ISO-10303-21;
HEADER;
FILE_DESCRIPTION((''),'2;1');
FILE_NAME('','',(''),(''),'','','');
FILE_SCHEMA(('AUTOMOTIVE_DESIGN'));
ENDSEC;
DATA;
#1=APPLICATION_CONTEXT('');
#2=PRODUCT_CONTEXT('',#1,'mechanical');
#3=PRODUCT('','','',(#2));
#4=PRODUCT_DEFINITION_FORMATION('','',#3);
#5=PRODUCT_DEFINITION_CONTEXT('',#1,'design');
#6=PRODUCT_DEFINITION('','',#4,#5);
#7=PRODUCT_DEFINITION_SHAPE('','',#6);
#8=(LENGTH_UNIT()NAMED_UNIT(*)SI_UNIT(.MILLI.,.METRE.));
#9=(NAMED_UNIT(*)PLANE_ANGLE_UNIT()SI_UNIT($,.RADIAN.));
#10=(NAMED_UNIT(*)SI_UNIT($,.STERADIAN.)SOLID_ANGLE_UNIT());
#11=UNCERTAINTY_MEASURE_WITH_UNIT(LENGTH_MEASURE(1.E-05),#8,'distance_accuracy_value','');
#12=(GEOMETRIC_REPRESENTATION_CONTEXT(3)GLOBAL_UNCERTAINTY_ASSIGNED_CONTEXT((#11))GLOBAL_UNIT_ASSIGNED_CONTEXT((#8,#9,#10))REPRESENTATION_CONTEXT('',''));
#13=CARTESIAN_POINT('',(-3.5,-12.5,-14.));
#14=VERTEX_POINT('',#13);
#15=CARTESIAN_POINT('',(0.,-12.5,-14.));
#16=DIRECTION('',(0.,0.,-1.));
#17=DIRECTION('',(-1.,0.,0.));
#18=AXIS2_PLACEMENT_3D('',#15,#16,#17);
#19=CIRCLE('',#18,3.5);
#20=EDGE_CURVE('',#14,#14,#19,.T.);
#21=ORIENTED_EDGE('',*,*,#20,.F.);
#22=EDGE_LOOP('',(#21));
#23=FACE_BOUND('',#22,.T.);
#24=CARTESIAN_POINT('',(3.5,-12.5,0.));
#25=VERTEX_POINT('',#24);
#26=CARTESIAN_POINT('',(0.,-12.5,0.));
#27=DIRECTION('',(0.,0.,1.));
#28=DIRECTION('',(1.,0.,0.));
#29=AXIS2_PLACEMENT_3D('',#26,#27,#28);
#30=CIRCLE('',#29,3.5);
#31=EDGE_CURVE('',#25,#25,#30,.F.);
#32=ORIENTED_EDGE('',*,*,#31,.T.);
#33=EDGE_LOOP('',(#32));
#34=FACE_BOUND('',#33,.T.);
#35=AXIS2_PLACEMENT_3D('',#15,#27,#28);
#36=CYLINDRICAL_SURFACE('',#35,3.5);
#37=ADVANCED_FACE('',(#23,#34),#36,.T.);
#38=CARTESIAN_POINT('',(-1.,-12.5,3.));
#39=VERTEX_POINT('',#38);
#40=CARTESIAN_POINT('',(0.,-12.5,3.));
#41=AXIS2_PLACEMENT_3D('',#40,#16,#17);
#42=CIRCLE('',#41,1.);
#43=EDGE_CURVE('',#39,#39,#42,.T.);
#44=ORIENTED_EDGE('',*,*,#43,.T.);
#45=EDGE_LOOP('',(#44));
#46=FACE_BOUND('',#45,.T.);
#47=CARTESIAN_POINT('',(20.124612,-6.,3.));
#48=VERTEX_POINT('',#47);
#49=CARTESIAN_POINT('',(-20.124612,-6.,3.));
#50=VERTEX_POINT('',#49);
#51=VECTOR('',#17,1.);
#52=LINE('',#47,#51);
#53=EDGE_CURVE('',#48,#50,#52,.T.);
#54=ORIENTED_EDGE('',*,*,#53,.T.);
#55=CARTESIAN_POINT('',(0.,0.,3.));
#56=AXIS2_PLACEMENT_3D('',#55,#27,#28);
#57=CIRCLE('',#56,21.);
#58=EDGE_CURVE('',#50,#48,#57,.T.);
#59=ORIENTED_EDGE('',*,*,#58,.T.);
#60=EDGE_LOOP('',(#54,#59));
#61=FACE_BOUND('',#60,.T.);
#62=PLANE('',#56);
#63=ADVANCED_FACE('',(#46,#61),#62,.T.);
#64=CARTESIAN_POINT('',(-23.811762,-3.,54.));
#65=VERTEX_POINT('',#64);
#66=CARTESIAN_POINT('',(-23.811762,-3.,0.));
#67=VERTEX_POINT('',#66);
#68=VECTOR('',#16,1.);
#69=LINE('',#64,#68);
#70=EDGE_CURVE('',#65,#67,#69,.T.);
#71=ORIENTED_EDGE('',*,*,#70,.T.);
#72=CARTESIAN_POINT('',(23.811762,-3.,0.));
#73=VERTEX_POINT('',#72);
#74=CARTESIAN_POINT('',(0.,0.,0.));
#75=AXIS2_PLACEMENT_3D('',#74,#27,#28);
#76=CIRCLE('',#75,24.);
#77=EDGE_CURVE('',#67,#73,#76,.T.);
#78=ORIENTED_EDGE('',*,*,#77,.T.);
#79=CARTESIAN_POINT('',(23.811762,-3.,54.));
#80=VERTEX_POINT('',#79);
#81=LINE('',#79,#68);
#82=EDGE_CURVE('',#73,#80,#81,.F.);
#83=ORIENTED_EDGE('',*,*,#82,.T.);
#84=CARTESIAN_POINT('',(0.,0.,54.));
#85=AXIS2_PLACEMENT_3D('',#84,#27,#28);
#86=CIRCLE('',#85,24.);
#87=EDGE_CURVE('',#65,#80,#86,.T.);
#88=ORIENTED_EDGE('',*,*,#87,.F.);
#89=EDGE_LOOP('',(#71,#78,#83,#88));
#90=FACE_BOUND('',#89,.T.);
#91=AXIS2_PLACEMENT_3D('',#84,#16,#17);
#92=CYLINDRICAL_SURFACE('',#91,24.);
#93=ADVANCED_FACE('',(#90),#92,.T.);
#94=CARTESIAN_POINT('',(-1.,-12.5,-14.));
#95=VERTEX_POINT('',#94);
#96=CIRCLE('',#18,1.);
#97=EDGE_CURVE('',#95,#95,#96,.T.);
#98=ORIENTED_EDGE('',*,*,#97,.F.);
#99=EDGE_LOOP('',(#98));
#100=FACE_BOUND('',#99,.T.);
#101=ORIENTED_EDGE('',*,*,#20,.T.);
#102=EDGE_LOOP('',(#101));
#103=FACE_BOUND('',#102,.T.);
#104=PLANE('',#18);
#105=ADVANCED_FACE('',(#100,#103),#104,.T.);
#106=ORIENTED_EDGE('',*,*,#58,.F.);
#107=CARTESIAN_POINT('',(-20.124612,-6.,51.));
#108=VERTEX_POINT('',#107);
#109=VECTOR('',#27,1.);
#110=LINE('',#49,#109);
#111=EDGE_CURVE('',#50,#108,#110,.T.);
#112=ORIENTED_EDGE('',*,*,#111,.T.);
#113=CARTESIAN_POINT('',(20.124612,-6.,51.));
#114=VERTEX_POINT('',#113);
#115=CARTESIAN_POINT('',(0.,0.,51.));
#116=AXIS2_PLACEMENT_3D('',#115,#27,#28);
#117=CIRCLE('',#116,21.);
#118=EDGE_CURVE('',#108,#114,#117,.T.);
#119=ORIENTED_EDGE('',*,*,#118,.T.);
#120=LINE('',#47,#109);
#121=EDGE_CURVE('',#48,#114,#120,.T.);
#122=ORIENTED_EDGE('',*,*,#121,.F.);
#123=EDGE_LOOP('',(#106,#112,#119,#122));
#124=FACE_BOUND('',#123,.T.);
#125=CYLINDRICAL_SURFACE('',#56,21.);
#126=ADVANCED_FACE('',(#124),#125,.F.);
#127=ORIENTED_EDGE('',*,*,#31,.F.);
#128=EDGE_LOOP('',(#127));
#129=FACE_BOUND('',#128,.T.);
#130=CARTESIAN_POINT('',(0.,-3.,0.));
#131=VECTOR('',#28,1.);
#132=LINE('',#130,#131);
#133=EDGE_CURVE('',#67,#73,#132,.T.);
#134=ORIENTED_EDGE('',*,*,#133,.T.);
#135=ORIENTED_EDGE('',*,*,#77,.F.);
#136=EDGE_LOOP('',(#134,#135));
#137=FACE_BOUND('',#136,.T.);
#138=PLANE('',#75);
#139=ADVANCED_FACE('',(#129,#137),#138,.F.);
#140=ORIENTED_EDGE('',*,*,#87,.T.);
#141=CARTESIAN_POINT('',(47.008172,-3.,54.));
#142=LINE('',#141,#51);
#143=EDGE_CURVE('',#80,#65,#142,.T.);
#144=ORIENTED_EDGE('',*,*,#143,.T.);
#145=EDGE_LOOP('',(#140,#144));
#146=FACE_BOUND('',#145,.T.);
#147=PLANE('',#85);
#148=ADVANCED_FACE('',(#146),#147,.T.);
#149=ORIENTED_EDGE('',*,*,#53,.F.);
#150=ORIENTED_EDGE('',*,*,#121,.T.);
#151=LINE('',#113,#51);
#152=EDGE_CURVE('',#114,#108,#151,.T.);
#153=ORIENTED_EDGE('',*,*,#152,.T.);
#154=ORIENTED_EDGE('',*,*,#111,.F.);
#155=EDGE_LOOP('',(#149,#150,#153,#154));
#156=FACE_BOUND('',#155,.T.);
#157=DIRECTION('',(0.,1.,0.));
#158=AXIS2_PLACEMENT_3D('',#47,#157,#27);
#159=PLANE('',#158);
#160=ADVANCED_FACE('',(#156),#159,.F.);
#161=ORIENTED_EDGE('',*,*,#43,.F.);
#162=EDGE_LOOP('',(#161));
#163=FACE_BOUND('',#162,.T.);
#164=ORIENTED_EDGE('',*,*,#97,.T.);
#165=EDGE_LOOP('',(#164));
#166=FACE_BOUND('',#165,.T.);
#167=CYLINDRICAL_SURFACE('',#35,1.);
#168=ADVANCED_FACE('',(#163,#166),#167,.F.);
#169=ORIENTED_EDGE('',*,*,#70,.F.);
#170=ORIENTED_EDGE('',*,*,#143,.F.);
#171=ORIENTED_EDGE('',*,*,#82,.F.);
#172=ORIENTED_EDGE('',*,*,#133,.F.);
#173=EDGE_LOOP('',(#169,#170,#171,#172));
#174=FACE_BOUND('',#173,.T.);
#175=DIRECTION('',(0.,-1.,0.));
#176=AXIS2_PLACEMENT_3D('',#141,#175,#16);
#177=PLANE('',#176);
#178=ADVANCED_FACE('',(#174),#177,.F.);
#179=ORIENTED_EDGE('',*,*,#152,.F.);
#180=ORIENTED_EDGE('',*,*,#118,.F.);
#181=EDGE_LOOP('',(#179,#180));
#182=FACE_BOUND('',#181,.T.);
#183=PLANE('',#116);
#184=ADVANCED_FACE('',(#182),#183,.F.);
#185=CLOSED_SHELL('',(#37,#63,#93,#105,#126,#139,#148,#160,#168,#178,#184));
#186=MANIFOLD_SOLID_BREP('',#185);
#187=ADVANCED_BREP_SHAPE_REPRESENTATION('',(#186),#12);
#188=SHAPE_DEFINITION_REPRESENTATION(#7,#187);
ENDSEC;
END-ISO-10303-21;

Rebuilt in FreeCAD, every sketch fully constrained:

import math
import FreeCAD as App
import Part
import Sketcher

doc = App.newDocument("Part")
body = doc.addObject("PartDesign::Body", "Body")

# Sketch on XY plane
sketch1 = body.newObject("Sketcher::SketchObject", "Sketch")
sketch1.AttachmentSupport = (doc.getObject("XY_Plane"), [""])
sketch1.MapMode = "FlatFace"
sketch1.addGeometry(Part.Circle(App.Vector(0, 0, 0), App.Vector(0, 0, 1), 24), False)
sketch1.addConstraint(Sketcher.Constraint("Coincident", 0, 3, -1, 1))
sketch1.addConstraint(Sketcher.Constraint("Diameter", 0, 48.0))
pad1 = body.newObject("PartDesign::Pad", "Pad")
pad1.Profile = sketch1
pad1.Length = 54

# Sketch on XY plane
sketch2 = body.newObject("Sketcher::SketchObject", "Sketch001")
sketch2.AttachmentSupport = (doc.getObject("XY_Plane"), [""])
sketch2.MapMode = "FlatFace"
sketch2.addGeometry(Part.LineSegment(App.Vector(47.008172, 33.253248, 0), App.Vector(47.008172, -3, 0)), False)
sketch2.addGeometry(Part.LineSegment(App.Vector(47.008172, -3, 0), App.Vector(-42.992026, -3, 0)), False)
sketch2.addGeometry(Part.LineSegment(App.Vector(-42.992026, -3, 0), App.Vector(-42.992026, 33.253248, 0)), False)
sketch2.addGeometry(Part.LineSegment(App.Vector(-42.992026, 33.253248, 0), App.Vector(47.008172, 33.253248, 0)), False)
sketch2.addConstraint(Sketcher.Constraint("Coincident", 0, 2, 1, 1))
sketch2.addConstraint(Sketcher.Constraint("Coincident", 1, 2, 2, 1))
sketch2.addConstraint(Sketcher.Constraint("Coincident", 2, 2, 3, 1))
sketch2.addConstraint(Sketcher.Constraint("Coincident", 3, 2, 0, 1))
sketch2.addConstraint(Sketcher.Constraint("Vertical", 0))
sketch2.addConstraint(Sketcher.Constraint("Horizontal", 1))
sketch2.addConstraint(Sketcher.Constraint("Vertical", 2))
sketch2.addConstraint(Sketcher.Constraint("Horizontal", 3))
sketch2.addConstraint(Sketcher.Constraint("DistanceY", 0, 2, -1, 1, 3.0))
sketch2.addConstraint(Sketcher.Constraint("DistanceX", 1, 2, 1, 1, 90.000198))
sketch2.addConstraint(Sketcher.Constraint("DistanceY", 0, 2, 0, 1, 36.253248))
sketch2.addConstraint(Sketcher.Constraint("DistanceX", -1, 1, 0, 2, 47.008172))
pocket1 = body.newObject("PartDesign::Pocket", "Pocket")
pocket1.Profile = sketch2
pocket1.Type = "ThroughAll"
pocket1.Reversed = True

# Sketch on XY plane
sketch3 = body.newObject("Sketcher::SketchObject", "Sketch002")
sketch3.AttachmentSupport = (doc.getObject("XY_Plane"), [""])
sketch3.MapMode = "FlatFace"
sketch3.addGeometry(Part.Circle(App.Vector(0, -12.5, 0), App.Vector(0, 0, 1), 3.5), False)
sketch3.addGeometry(Part.Circle(App.Vector(0, -12.5, 0), App.Vector(0, 0, 1), 1), False)
sketch3.addConstraint(Sketcher.Constraint("Coincident", 1, 3, 0, 3))
sketch3.addConstraint(Sketcher.Constraint("PointOnObject", 0, 3, -2))
sketch3.addConstraint(Sketcher.Constraint("Diameter", 0, 7.0))
sketch3.addConstraint(Sketcher.Constraint("Diameter", 1, 2.0))
sketch3.addConstraint(Sketcher.Constraint("DistanceY", 0, 3, -1, 1, 12.5))
pad2 = body.newObject("PartDesign::Pad", "Pad001")
pad2.Profile = sketch3
pad2.Length = 14
pad2.Reversed = True

# Sketch on XY plane
sketch4 = body.newObject("Sketcher::SketchObject", "Sketch003")
sketch4.AttachmentSupport = (doc.getObject("XY_Plane"), [""])
sketch4.MapMode = "FlatFace"
sketch4.AttachmentOffset = App.Placement(App.Vector(0, 0, 51), App.Rotation())
sketch4.addGeometry(Part.LineSegment(App.Vector(20.124612, -6, 0), App.Vector(-20.124612, -6, 0)), False)
sketch4.addGeometry(Part.ArcOfCircle(Part.Circle(App.Vector(0, 0, 0), App.Vector(0, 0, 1), 21), math.radians(-163.39845), math.radians(-16.60155)), False)
sketch4.addConstraint(Sketcher.Constraint("Coincident", 0, 1, 1, 2))
sketch4.addConstraint(Sketcher.Constraint("Coincident", 1, 1, 0, 2))
sketch4.addConstraint(Sketcher.Constraint("Horizontal", 0))
sketch4.addConstraint(Sketcher.Constraint("Coincident", 1, 3, -1, 1))
sketch4.addConstraint(Sketcher.Constraint("Radius", 1, 21.0))
sketch4.addConstraint(Sketcher.Constraint("DistanceY", 0, 1, -1, 1, 6.0))
pocket2 = body.newObject("PartDesign::Pocket", "Pocket001")
pocket2.Profile = sketch4
pocket2.Length = 48

# Sketch on XY plane
sketch5 = body.newObject("Sketcher::SketchObject", "Sketch004")
sketch5.AttachmentSupport = (doc.getObject("XY_Plane"), [""])
sketch5.MapMode = "FlatFace"
sketch5.AttachmentOffset = App.Placement(App.Vector(0, 0, 3), App.Rotation())
sketch5.addGeometry(Part.Circle(App.Vector(0, -12.5, 0), App.Vector(0, 0, 1), 1), False)
sketch5.addConstraint(Sketcher.Constraint("PointOnObject", 0, 3, -2))
sketch5.addConstraint(Sketcher.Constraint("Diameter", 0, 2.0))
sketch5.addConstraint(Sketcher.Constraint("DistanceY", 0, 3, -1, 1, 12.5))
pocket3 = body.newObject("PartDesign::Pocket", "Pocket002")
pocket3.Profile = sketch5
pocket3.Length = 3

doc.recompute()
